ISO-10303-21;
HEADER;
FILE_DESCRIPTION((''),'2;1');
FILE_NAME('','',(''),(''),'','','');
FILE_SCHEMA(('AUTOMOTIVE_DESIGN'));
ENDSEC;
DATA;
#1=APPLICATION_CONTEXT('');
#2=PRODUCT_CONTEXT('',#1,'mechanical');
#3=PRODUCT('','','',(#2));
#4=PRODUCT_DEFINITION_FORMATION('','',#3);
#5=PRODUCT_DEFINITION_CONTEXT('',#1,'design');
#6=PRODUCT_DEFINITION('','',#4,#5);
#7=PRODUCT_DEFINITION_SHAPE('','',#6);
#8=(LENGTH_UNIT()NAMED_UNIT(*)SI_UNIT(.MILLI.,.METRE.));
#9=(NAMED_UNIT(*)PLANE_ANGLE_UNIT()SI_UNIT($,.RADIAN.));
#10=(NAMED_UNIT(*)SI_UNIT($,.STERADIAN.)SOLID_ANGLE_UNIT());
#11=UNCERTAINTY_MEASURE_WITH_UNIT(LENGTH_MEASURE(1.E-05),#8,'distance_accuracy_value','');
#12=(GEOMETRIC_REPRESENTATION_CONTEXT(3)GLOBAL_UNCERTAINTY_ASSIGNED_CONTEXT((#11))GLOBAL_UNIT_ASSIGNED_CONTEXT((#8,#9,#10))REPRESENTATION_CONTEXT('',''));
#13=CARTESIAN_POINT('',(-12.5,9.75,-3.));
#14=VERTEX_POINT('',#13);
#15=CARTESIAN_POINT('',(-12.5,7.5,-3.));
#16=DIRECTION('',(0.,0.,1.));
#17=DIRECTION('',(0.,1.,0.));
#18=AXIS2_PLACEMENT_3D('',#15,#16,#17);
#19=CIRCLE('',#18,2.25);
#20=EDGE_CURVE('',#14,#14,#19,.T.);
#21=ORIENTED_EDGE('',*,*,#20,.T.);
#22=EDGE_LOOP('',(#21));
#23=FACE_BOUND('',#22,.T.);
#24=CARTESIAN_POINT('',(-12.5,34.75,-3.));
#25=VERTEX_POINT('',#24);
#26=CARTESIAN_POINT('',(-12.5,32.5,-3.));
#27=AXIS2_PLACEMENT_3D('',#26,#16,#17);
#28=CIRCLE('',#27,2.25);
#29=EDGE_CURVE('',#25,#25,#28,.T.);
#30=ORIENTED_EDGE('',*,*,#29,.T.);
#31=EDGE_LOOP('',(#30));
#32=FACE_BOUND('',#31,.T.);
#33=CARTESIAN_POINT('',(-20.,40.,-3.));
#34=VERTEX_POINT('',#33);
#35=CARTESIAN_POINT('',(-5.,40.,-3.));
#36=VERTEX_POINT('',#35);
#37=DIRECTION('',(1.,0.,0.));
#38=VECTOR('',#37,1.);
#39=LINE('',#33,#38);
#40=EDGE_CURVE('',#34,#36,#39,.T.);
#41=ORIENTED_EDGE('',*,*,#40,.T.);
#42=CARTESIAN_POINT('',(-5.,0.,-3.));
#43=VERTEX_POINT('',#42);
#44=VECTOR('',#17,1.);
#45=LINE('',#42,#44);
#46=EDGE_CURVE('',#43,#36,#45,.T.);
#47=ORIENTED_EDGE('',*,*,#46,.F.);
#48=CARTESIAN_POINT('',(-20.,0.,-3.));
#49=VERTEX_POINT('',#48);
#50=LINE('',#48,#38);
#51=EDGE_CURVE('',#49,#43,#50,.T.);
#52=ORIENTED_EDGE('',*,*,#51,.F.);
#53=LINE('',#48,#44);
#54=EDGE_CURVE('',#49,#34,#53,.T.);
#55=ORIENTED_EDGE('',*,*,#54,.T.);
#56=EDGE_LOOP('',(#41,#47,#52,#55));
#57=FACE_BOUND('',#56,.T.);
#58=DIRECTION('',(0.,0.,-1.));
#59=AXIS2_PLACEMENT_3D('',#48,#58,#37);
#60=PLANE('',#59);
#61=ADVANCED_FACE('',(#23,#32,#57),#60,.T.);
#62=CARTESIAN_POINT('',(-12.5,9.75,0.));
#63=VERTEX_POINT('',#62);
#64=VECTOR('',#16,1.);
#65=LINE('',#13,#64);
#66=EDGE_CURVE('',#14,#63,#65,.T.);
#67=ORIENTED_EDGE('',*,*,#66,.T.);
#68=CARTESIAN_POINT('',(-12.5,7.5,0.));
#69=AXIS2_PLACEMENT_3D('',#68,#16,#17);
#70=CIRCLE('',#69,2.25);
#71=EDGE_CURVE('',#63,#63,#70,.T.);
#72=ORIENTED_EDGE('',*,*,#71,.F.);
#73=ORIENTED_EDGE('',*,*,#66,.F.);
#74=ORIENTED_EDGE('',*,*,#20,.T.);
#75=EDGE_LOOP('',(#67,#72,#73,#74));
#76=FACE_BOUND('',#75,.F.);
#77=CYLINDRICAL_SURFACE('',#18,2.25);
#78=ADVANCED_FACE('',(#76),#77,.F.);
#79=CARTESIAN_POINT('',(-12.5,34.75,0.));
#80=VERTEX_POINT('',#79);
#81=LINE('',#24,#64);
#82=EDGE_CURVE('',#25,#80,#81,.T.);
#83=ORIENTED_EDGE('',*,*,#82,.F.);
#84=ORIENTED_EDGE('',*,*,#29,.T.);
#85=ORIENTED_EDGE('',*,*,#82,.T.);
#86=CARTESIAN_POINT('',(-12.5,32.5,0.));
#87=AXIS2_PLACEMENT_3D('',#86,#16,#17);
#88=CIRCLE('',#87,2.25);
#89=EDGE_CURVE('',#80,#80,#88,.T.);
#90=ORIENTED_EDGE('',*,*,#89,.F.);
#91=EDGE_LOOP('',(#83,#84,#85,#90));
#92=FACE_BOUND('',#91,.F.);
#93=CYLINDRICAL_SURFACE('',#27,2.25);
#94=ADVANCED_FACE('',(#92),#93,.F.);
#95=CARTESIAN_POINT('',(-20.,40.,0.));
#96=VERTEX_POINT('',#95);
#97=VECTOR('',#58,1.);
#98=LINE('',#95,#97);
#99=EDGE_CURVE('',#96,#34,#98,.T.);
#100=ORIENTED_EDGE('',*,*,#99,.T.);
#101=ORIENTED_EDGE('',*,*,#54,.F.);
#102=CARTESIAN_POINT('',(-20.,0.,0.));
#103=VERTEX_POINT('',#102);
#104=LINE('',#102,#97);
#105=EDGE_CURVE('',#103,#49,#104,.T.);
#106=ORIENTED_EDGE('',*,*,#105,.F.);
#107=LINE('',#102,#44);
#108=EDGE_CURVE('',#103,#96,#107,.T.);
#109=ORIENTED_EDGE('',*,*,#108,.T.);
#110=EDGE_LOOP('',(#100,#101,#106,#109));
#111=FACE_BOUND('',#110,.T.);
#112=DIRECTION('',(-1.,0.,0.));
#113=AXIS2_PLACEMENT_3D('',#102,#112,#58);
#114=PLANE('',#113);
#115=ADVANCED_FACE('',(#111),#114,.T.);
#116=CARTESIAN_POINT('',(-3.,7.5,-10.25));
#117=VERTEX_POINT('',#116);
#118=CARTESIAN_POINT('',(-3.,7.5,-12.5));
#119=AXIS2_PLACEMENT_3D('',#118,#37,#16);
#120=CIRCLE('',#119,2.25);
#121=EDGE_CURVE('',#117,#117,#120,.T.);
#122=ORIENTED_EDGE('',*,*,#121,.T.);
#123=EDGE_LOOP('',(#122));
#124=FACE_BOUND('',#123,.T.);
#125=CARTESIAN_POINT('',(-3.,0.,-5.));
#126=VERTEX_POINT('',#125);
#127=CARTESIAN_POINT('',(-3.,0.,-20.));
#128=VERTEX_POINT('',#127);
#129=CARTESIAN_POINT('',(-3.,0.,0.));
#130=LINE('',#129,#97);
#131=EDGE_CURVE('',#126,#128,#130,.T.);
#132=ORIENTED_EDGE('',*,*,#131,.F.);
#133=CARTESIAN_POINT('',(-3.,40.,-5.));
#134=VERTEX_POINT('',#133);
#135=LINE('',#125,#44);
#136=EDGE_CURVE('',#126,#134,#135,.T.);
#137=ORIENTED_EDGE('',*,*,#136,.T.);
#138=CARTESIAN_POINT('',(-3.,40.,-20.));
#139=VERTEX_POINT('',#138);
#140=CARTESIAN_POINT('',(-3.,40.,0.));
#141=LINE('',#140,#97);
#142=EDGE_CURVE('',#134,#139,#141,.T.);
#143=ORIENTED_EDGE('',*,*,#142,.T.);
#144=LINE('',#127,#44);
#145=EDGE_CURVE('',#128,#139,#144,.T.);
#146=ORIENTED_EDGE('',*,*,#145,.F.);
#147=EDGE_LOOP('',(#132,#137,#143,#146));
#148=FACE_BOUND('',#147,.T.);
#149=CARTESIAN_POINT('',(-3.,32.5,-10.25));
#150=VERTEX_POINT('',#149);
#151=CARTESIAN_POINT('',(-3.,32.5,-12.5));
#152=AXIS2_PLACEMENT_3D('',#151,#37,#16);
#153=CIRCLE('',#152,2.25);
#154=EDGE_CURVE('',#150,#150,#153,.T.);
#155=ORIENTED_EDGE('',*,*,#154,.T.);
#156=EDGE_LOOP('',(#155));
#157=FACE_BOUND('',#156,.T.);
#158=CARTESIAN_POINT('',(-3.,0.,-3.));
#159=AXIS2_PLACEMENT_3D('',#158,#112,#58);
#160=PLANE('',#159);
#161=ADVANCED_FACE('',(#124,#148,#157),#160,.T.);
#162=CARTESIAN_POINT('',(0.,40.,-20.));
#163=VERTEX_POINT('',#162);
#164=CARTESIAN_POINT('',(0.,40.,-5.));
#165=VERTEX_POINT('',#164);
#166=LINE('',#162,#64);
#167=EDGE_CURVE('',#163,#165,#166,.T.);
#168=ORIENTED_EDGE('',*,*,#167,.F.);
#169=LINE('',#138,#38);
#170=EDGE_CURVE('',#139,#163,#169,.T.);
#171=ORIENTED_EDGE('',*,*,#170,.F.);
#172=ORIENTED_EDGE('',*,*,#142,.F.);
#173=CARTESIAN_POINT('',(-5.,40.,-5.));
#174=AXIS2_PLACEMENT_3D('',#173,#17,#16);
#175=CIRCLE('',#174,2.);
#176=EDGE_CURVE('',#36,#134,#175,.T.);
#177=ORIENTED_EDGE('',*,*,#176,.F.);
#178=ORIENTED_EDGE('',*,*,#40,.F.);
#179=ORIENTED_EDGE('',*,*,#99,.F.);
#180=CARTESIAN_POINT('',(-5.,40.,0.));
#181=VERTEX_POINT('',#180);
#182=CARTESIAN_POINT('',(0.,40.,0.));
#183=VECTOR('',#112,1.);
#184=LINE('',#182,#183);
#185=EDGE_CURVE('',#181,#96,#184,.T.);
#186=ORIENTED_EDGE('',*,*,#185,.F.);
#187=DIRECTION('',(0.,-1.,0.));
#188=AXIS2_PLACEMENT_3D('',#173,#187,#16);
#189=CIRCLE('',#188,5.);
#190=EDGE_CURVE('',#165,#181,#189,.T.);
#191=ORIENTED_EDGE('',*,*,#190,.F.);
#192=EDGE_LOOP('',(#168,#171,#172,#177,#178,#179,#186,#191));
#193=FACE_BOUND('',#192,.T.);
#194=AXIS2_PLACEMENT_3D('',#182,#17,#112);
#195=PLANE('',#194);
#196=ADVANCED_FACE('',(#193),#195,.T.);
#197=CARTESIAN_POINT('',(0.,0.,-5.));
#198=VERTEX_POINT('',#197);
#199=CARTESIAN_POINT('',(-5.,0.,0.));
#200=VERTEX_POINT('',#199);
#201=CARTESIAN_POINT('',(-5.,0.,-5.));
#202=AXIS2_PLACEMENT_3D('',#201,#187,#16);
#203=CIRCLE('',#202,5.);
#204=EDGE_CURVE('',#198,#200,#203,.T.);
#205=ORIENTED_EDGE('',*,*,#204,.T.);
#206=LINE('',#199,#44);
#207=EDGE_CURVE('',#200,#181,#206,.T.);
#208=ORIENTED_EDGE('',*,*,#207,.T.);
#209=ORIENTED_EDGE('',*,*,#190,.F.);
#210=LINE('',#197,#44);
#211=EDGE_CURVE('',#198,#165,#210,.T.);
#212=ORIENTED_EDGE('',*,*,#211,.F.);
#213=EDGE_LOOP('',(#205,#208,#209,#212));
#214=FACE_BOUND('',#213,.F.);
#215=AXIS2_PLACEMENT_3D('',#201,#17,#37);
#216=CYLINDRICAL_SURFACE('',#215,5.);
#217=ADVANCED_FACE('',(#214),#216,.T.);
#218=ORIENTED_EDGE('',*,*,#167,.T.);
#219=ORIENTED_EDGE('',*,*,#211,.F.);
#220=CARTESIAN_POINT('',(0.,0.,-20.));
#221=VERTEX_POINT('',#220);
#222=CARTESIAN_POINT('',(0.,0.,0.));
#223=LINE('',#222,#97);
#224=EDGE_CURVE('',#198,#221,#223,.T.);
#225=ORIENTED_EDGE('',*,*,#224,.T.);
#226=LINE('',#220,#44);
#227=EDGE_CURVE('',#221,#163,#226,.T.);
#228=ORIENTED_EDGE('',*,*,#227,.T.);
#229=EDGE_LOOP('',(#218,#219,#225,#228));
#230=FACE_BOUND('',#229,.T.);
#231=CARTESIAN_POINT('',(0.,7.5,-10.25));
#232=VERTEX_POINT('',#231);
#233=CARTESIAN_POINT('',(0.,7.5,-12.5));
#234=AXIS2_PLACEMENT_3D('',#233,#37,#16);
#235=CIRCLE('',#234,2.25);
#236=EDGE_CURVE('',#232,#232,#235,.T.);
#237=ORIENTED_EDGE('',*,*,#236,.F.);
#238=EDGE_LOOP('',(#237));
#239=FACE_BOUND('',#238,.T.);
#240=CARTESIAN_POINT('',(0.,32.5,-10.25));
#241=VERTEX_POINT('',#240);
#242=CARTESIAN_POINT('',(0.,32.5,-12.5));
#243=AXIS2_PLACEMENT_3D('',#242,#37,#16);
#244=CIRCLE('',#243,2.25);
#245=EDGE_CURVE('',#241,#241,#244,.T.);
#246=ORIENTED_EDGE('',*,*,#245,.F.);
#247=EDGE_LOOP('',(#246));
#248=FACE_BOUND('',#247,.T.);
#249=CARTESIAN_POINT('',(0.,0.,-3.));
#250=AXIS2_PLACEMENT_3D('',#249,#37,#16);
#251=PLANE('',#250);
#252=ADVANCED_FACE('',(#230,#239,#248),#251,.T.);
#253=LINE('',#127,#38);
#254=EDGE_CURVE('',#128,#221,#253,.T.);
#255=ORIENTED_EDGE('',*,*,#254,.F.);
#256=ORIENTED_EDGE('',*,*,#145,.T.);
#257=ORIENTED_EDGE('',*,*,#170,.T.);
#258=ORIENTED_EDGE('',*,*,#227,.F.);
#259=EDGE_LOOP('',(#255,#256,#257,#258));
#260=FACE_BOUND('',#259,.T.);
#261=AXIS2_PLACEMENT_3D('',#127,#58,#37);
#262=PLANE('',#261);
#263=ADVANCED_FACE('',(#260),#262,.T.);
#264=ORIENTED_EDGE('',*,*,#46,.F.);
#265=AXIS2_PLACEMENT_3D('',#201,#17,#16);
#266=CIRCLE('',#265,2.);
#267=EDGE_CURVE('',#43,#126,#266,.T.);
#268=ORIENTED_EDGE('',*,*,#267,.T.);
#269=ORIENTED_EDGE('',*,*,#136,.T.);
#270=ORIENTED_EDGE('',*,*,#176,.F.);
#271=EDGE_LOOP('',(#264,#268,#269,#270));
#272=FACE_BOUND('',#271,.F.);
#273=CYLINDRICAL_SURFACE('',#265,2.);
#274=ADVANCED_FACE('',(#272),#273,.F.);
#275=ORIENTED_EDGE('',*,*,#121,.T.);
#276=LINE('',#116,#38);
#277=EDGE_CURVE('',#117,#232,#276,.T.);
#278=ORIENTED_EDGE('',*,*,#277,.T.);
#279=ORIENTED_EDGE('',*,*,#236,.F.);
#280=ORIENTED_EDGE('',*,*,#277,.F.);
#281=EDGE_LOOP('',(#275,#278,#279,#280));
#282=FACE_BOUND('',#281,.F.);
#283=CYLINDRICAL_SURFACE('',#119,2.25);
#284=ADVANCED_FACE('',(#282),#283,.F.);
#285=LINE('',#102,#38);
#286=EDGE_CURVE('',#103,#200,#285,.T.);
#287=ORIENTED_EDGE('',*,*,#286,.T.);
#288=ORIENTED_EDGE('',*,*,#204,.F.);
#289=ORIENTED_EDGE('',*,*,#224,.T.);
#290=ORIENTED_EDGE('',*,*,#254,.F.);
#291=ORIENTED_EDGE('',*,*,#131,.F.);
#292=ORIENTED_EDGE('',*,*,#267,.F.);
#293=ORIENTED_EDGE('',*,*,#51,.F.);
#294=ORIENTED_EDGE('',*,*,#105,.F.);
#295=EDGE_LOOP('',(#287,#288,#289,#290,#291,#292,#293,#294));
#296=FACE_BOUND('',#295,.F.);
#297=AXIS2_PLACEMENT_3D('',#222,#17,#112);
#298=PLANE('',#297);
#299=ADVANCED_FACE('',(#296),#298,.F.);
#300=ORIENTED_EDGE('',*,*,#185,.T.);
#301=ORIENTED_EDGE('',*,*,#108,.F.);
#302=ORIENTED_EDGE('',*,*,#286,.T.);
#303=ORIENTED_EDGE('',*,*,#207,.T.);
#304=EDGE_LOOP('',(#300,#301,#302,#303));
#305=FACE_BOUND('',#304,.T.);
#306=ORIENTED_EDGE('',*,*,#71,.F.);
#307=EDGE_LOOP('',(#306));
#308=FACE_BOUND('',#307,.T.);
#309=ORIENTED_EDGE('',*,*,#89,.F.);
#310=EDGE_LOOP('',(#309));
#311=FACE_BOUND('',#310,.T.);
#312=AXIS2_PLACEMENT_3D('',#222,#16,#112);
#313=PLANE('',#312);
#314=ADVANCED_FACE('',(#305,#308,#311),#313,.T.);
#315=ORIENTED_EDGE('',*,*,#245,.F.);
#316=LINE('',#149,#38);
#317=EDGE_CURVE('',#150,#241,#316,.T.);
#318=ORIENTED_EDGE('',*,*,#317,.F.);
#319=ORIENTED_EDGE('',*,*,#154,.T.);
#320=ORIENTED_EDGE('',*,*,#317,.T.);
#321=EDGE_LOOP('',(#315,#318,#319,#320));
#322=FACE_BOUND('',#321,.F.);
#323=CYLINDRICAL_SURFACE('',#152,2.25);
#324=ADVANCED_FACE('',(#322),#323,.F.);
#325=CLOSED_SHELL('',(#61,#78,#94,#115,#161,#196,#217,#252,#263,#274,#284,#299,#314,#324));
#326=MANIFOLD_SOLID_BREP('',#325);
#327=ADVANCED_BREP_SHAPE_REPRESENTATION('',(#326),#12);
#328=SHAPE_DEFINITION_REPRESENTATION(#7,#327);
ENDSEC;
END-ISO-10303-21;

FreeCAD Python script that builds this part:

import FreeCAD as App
import Part
import Sketcher
from FreeCAD import Vector
Q = App.Units.Quantity


def edges_at(feature, points):
    """Names of the edges that pass closest to the given points."""
    edges = feature.Shape.Edges
    near = lambda p: min(range(len(edges)), key=lambda i: edges[i].distToShape(Part.Vertex(*p))[0])
    return sorted({f"Edge{near(p) + 1}" for p in points})


def add_polygon(sketch, points):
    """Adds a closed chain of lines whose ends are joined by coincident constraints."""
    first, n = sketch.GeometryCount, len(points)
    for a, b in zip(points, points[1:] + points[:1]):
        sketch.addGeometry(Part.LineSegment(App.Vector(*a, 0), App.Vector(*b, 0)), False)
    for i in range(n):
        sketch.addConstraint(Sketcher.Constraint("Coincident", first + i, 2, first + (i + 1) % n, 1))

doc = App.newDocument("Part")
body = doc.addObject("PartDesign::Body", "Body")

# Sketch on XZ plane
sketch1 = body.newObject("Sketcher::SketchObject", "Sketch")
sketch1.AttachmentSupport = (doc.getObject("XZ_Plane"), [""])
sketch1.MapMode = "FlatFace"
add_polygon(sketch1, [(0, 0), (0, -20), (-3, -20), (-3, -3), (-20, -3), (-20, 0)])  # lines 0-5
sketch1.addConstraint([
    Sketcher.Constraint("Vertical", 0),
    Sketcher.Constraint("Horizontal", 1),
    Sketcher.Constraint("Vertical", 2),
    Sketcher.Constraint("Horizontal", 3),
    Sketcher.Constraint("Vertical", 4),
    Sketcher.Constraint("Horizontal", 5),
    Sketcher.Constraint("Coincident", 5, 2, -1, 1),
    Sketcher.Constraint("Equal", 5, 0),
    Sketcher.Constraint("Equal", 3, 2),
    Sketcher.Constraint("DistanceX", 1, 2, 1, 1, Q("3 mm")),
    Sketcher.Constraint("DistanceX", 5, 1, 5, 2, Q("20 mm")),
])
pad1 = body.newObject("PartDesign::Pad", "Pad")
pad1.Profile = sketch1
pad1.Length = 40
pad1.Reversed = True
doc.recompute()

fillet = body.newObject("PartDesign::Fillet", "Fillet")
fillet.Base = (pad1, edges_at(pad1, [(-3, 20, -3)]))
fillet.Radius = 2
doc.recompute()

fillet2 = body.newObject("PartDesign::Fillet", "Fillet001")
fillet2.Base = (fillet, edges_at(fillet, [(0, 20, 0)]))
fillet2.Radius = 5

# Sketch on YZ plane
sketch2 = body.newObject("Sketcher::SketchObject", "Sketch001")
sketch2.AttachmentSupport = (doc.getObject("YZ_Plane"), [""])
sketch2.MapMode = "FlatFace"
sketch2.AttachmentOffset = App.Placement(Vector(0, 0, -3), App.Rotation())
sketch2.addGeometry([
    Part.Circle(Vector(32.5, -12.5, 0), Vector(0, 0, 1), 2.2),
    Part.Circle(Vector(7.5, -12.5, 0), Vector(0, 0, 1), 2.2),
], False)
sketch2.addConstraint([
    Sketcher.Constraint("Equal", 0, 1),
    Sketcher.Constraint("Horizontal", 0, 3, 1, 3),
    Sketcher.Constraint("Diameter", 0, Q("4.5 mm")),
    Sketcher.Constraint("DistanceX", 1, 3, 0, 3, Q("25 mm")),
    Sketcher.Constraint("DistanceX", -1, 1, 0, 3, Q("32.5 mm")),
    Sketcher.Constraint("DistanceY", 0, 3, -1, 1, Q("12.5 mm")),
])
doc.recompute()
hole = body.newObject("PartDesign::Hole", "Hole")
hole.Profile = sketch2
hole.ThreadType = "None"
hole.Diameter = 4.5
hole.DepthType = "ThroughAll"
hole.Reversed = True

# Sketch on XY plane
sketch3 = body.newObject("Sketcher::SketchObject", "Sketch002")
sketch3.AttachmentSupport = (doc.getObject("XY_Plane"), [""])
sketch3.MapMode = "FlatFace"
sketch3.AttachmentOffset = App.Placement(Vector(0, 0, -3), App.Rotation())
sketch3.addGeometry([
    Part.Circle(Vector(-12.5, 32.5, 0), Vector(0, 0, 1), 2.2),
    Part.Circle(Vector(-12.5, 7.5, 0), Vector(0, 0, 1), 2.2),
], False)
sketch3.addConstraint([
    Sketcher.Constraint("Equal", 0, 1),
    Sketcher.Constraint("Vertical", 0, 3, 1, 3),
    Sketcher.Constraint("Diameter", 0, Q("4.5 mm")),
    Sketcher.Constraint("DistanceY", 1, 3, 0, 3, Q("25 mm")),
    Sketcher.Constraint("DistanceX", 0, 3, -1, 1, Q("12.5 mm")),
    Sketcher.Constraint("DistanceY", -1, 1, 0, 3, Q("32.5 mm")),
])
doc.recompute()
hole2 = body.newObject("PartDesign::Hole", "Hole001")
hole2.Profile = sketch3
hole2.ThreadType = "None"
hole2.Diameter = 4.5
hole2.DepthType = "ThroughAll"
hole2.Reversed = True

doc.recompute()
